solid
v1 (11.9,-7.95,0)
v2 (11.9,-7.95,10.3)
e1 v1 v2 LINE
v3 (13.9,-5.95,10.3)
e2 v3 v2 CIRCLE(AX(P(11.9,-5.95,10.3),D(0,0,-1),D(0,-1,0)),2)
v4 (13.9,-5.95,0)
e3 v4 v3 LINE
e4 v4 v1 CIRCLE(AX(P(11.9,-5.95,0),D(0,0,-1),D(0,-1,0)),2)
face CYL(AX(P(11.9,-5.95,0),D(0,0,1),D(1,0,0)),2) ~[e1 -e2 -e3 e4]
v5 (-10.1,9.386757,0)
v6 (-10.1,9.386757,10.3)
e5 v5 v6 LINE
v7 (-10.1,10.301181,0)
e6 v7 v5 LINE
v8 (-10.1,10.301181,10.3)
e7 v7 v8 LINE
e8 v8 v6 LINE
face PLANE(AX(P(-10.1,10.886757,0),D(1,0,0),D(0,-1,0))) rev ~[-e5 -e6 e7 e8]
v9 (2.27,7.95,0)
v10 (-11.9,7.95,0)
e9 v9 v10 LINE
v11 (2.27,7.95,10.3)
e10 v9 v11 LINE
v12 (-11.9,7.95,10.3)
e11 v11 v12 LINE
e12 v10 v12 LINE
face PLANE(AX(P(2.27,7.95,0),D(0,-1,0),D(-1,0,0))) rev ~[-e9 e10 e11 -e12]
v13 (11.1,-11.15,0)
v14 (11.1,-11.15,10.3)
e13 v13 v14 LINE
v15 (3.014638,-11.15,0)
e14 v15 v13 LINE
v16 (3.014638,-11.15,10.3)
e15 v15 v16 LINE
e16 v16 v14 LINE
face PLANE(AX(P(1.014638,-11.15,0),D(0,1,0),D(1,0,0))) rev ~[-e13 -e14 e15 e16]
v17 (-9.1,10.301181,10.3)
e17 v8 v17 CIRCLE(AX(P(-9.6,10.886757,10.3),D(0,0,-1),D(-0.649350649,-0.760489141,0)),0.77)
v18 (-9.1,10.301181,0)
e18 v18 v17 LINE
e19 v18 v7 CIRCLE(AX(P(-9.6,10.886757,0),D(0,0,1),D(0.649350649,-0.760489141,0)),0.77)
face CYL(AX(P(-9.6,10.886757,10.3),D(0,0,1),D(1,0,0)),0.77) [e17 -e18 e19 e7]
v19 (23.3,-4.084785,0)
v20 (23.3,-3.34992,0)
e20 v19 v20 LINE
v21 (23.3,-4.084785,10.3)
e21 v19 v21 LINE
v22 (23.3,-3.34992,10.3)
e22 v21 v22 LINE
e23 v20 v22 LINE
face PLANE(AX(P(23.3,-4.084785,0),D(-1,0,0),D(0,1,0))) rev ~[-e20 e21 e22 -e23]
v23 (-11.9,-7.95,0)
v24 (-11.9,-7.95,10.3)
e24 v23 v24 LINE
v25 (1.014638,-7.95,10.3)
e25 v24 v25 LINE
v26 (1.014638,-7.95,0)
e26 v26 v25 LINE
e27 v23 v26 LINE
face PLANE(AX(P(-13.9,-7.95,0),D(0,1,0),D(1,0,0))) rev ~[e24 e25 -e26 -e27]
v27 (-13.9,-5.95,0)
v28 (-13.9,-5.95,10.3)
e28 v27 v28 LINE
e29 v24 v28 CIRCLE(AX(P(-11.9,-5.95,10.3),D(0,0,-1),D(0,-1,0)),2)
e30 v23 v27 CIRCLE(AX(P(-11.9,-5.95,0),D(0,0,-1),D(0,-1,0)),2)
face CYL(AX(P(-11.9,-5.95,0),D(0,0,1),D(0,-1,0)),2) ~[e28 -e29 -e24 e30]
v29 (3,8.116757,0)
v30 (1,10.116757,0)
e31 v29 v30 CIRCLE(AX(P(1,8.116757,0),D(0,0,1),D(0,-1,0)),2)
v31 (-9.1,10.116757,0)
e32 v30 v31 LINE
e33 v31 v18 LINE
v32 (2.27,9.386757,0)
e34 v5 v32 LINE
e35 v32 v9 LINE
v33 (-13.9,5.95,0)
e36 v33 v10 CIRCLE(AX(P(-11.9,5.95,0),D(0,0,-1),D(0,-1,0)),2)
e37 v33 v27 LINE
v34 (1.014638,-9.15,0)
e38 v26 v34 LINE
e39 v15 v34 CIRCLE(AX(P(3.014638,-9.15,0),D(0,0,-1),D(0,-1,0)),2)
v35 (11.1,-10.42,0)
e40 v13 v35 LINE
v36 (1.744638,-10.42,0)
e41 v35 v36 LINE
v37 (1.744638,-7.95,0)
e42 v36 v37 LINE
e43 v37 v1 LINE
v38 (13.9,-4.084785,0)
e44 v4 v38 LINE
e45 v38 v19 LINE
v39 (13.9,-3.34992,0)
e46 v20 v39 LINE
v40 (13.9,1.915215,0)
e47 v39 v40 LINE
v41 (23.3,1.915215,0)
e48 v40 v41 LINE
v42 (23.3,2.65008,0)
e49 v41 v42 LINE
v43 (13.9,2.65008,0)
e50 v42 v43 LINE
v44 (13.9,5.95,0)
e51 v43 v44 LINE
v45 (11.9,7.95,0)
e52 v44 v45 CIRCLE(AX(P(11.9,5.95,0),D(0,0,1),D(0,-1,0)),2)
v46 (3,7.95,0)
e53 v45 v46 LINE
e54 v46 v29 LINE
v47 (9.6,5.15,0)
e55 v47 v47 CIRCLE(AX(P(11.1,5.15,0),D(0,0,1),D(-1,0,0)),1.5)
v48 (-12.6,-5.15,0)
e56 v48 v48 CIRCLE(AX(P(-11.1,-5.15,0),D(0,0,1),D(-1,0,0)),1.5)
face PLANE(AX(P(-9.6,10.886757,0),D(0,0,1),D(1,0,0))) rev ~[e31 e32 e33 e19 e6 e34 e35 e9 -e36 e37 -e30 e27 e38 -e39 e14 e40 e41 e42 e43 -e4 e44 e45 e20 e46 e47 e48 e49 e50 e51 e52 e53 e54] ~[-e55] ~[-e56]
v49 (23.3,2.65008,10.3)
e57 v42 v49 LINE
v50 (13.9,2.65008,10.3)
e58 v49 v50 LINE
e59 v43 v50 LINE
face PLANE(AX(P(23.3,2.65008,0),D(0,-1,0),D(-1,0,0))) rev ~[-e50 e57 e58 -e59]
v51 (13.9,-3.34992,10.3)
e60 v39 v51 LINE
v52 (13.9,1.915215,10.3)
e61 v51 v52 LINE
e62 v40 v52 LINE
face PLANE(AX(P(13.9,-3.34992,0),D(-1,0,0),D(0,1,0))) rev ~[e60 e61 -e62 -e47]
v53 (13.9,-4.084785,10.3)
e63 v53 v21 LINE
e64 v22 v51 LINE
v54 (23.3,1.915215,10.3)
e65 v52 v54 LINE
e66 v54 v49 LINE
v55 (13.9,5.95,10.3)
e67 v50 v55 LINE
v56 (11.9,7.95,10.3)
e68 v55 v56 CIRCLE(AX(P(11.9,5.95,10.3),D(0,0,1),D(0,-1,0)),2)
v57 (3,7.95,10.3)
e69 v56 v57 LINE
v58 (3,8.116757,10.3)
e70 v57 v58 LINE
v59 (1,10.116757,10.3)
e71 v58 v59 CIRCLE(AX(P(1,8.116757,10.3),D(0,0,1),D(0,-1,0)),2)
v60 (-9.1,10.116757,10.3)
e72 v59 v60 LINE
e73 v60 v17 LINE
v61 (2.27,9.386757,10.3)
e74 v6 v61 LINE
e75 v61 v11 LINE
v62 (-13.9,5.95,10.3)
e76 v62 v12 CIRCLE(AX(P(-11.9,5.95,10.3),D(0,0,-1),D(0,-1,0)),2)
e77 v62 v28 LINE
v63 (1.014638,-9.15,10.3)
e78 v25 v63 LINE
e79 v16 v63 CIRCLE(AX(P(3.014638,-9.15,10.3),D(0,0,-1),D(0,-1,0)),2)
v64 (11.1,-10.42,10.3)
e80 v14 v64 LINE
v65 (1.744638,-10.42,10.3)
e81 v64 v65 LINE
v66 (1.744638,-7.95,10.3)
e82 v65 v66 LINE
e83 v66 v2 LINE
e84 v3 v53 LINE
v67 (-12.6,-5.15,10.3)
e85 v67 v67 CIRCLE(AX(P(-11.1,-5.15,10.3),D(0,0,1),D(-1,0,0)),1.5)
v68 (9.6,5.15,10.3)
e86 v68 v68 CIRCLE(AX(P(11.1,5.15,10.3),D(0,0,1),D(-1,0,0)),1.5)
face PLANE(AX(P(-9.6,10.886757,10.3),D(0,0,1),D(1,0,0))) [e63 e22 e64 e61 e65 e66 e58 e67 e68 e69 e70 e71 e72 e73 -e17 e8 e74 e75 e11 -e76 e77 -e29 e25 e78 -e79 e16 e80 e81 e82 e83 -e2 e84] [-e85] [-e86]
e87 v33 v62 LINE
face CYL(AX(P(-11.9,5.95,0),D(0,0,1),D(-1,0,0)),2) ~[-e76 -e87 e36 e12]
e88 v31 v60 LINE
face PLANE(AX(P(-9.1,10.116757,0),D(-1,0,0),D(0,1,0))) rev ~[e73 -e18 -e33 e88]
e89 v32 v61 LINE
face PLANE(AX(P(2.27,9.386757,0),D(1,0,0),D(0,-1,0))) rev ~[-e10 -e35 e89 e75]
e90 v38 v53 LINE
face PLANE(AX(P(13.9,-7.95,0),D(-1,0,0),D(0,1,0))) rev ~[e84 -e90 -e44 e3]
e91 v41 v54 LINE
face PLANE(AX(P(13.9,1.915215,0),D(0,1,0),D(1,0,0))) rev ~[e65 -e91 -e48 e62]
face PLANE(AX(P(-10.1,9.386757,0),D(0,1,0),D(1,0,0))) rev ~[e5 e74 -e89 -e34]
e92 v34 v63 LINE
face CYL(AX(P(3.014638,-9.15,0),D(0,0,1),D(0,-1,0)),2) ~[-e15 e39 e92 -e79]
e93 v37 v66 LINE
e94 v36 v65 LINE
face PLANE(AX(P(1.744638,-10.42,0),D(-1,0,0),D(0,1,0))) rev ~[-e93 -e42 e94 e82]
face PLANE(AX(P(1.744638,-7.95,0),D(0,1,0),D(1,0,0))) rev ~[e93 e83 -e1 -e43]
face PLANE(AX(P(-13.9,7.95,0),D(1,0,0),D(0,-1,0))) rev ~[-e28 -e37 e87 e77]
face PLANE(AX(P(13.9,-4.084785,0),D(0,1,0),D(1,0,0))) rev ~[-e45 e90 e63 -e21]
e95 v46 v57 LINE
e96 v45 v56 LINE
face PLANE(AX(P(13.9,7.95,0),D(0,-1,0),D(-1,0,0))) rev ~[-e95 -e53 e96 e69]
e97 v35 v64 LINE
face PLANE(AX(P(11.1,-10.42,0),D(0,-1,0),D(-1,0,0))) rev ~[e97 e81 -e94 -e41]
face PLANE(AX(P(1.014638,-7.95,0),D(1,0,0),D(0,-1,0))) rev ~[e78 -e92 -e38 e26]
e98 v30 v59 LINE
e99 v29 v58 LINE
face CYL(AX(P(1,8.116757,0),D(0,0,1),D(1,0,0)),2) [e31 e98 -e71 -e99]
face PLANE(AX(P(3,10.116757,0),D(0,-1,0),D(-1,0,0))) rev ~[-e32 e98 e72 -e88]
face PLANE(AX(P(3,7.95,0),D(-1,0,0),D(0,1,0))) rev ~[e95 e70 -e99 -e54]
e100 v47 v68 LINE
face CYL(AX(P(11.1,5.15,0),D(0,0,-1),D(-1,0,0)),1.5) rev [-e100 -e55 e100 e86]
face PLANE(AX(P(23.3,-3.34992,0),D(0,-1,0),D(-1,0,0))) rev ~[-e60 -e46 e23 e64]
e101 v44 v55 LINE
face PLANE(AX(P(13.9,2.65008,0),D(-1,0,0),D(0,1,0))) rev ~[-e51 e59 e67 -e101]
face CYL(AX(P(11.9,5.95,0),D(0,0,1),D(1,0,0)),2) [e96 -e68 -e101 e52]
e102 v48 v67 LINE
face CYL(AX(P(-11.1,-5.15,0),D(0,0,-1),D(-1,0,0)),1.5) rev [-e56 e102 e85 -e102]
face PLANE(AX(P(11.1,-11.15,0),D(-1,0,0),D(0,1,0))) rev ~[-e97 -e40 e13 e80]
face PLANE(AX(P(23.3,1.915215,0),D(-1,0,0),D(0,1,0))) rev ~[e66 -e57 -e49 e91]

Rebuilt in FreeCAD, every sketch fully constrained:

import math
import FreeCAD as App
import Part
import Sketcher
Q = App.Units.Quantity


def edges_at(feature, points):
    """Names of the edges that pass closest to the given points."""
    edges = feature.Shape.Edges
    near = lambda p: min(range(len(edges)), key=lambda i: edges[i].distToShape(Part.Vertex(*p))[0])
    return sorted({f"Edge{near(p) + 1}" for p in points})

doc = App.newDocument("Part")
params = doc.addObject("Spreadsheet::Sheet", "Params")
for row, (alias, value) in enumerate([
    ("sketch1_diameter", "3 mm"),
    ("sketch1_radius", "0.5 mm"),
    ("sketch1_width", "9.4 mm"),
    ("sketch1_width2", "10.9 mm"),
    ("sketch1_width3", "12.1 mm"),
    ("pad1_length", "10.3 mm"),
    ("fillet_radius", "2 mm"),
    ("sketch2_diameter", "1.54 mm"),
    ("pad2_length", "10.3 mm"),
], start=1):
    params.set(f"A{row}", alias)
    params.set(f"B{row}", "=" + value)
    params.setAlias(f"B{row}", alias)

body = doc.addObject("PartDesign::Body", "Body")

sketch1 = body.newObject("Sketcher::SketchObject", "Sketch")
sketch1.AttachmentSupport = (doc.getObject("XY_Plane"), [""])
sketch1.MapMode = "FlatFace"
sketch1.addGeometry([
    Part.LineSegment(App.Vector(13.9, -4.1, 0), App.Vector(23.3, -4.1, 0)),
    Part.LineSegment(App.Vector(23.3, -4.1, 0), App.Vector(23.3, -3.3, 0)),
    Part.LineSegment(App.Vector(23.3, -3.3, 0), App.Vector(13.9, -3.3, 0)),
    Part.LineSegment(App.Vector(13.9, -3.3, 0), App.Vector(13.9, 1.9, 0)),
    Part.LineSegment(App.Vector(13.9, 1.9, 0), App.Vector(23.3, 1.9, 0)),
    Part.LineSegment(App.Vector(23.3, 1.9, 0), App.Vector(23.3, 2.7, 0)),
    Part.LineSegment(App.Vector(23.3, 2.7, 0), App.Vector(13.9, 2.7, 0)),
    Part.LineSegment(App.Vector(13.9, 2.7, 0), App.Vector(13.9, 8, 0)),
    Part.LineSegment(App.Vector(13.9, 8, 0), App.Vector(3, 8, 0)),
    Part.LineSegment(App.Vector(3, 8, 0), App.Vector(3, 10.1, 0)),
    Part.LineSegment(App.Vector(3, 10.1, 0), App.Vector(-9.1, 10.1, 0)),
    Part.LineSegment(App.Vector(-9.1, 10.1, 0), App.Vector(-9.1, 10.9, 0)),
    Part.ArcOfCircle(Part.Circle(App.Vector(-9.6, 10.9, 0), App.Vector(0, 0, 1), 0.5), math.radians(0), math.radians(180)),
    Part.LineSegment(App.Vector(-10.1, 10.9, 0), App.Vector(-10.1, 9.4, 0)),
    Part.LineSegment(App.Vector(-10.1, 9.4, 0), App.Vector(2.3, 9.4, 0)),
    Part.LineSegment(App.Vector(2.3, 9.4, 0), App.Vector(2.3, 8, 0)),
    Part.LineSegment(App.Vector(2.3, 8, 0), App.Vector(-13.9, 8, 0)),
    Part.LineSegment(App.Vector(-13.9, 8, 0), App.Vector(-13.9, -8, 0)),
    Part.LineSegment(App.Vector(-13.9, -8, 0), App.Vector(1, -8, 0)),
    Part.LineSegment(App.Vector(1, -8, 0), App.Vector(1, -11.2, 0)),
    Part.LineSegment(App.Vector(1, -11.2, 0), App.Vector(11.1, -11.2, 0)),
    Part.LineSegment(App.Vector(11.1, -11.2, 0), App.Vector(11.1, -10.4, 0)),
    Part.LineSegment(App.Vector(11.1, -10.4, 0), App.Vector(1.7, -10.4, 0)),
    Part.LineSegment(App.Vector(1.7, -10.4, 0), App.Vector(1.7, -8, 0)),
    Part.LineSegment(App.Vector(1.7, -8, 0), App.Vector(13.9, -8, 0)),
    Part.LineSegment(App.Vector(13.9, -8, 0), App.Vector(13.9, -4.1, 0)),
    Part.Circle(App.Vector(-11.1, -5.2, 0), App.Vector(0, 0, 1), 1.5),
    Part.Circle(App.Vector(11.1, 5.2, 0), App.Vector(0, 0, 1), 1.5),
], False)
sketch1.addConstraint([
    Sketcher.Constraint("Coincident", 0, 2, 1, 1),
    Sketcher.Constraint("Coincident", 1, 2, 2, 1),
    Sketcher.Constraint("Coincident", 2, 2, 3, 1),
    Sketcher.Constraint("Coincident", 3, 2, 4, 1),
    Sketcher.Constraint("Coincident", 4, 2, 5, 1),
    Sketcher.Constraint("Coincident", 5, 2, 6, 1),
    Sketcher.Constraint("Coincident", 6, 2, 7, 1),
    Sketcher.Constraint("Coincident", 7, 2, 8, 1),
    Sketcher.Constraint("Coincident", 8, 2, 9, 1),
    Sketcher.Constraint("Coincident", 9, 2, 10, 1),
    Sketcher.Constraint("Coincident", 10, 2, 11, 1),
    Sketcher.Constraint("Tangent", 11, 2, 12, 1),
    Sketcher.Constraint("Tangent", 12, 2, 13, 1),
    Sketcher.Constraint("Coincident", 13, 2, 14, 1),
    Sketcher.Constraint("Coincident", 14, 2, 15, 1),
    Sketcher.Constraint("Coincident", 15, 2, 16, 1),
    Sketcher.Constraint("Coincident", 16, 2, 17, 1),
    Sketcher.Constraint("Coincident", 17, 2, 18, 1),
    Sketcher.Constraint("Coincident", 18, 2, 19, 1),
    Sketcher.Constraint("Coincident", 19, 2, 20, 1),
    Sketcher.Constraint("Coincident", 20, 2, 21, 1),
    Sketcher.Constraint("Coincident", 21, 2, 22, 1),
    Sketcher.Constraint("Coincident", 22, 2, 23, 1),
    Sketcher.Constraint("Coincident", 23, 2, 24, 1),
    Sketcher.Constraint("Coincident", 24, 2, 25, 1),
    Sketcher.Constraint("Coincident", 25, 2, 0, 1),
    Sketcher.Constraint("Horizontal", 0),
    Sketcher.Constraint("Vertical", 1),
    Sketcher.Constraint("Horizontal", 2),
    Sketcher.Constraint("Vertical", 3),
    Sketcher.Constraint("Horizontal", 4),
    Sketcher.Constraint("Vertical", 5),
    Sketcher.Constraint("Horizontal", 6),
    Sketcher.Constraint("Vertical", 7),
    Sketcher.Constraint("Horizontal", 8),
    Sketcher.Constraint("Vertical", 9),
    Sketcher.Constraint("Horizontal", 10),
    Sketcher.Constraint("Vertical", 11),
    Sketcher.Constraint("Vertical", 13),
    Sketcher.Constraint("Horizontal", 14),
    Sketcher.Constraint("Vertical", 15),
    Sketcher.Constraint("Horizontal", 16),
    Sketcher.Constraint("Vertical", 17),
    Sketcher.Constraint("Horizontal", 18),
    Sketcher.Constraint("Vertical", 19),
    Sketcher.Constraint("Horizontal", 20),
    Sketcher.Constraint("Vertical", 21),
    Sketcher.Constraint("Horizontal", 22),
    Sketcher.Constraint("Vertical", 23),
    Sketcher.Constraint("Horizontal", 24),
    Sketcher.Constraint("Vertical", 25),
    Sketcher.Constraint("Equal", 26, 27),
    Sketcher.Constraint("Symmetric", 26, 3, 27, 3, -1, 1),
    Sketcher.Constraint("Symmetric", 7, 2, 17, 2, -1, 1),
    Sketcher.Constraint("Symmetric", 16, 2, 24, 2, -1, 1),
    Sketcher.Constraint("Horizontal", 8, 2, 15, 2),
    Sketcher.Constraint("Vertical", 1, 2, 4, 2),
    Sketcher.Constraint("Vertical", 3, 2, 6, 2),
    Sketcher.Constraint("Vertical", 27, 3, 20, 2),
    Sketcher.Constraint("Equal", 1, 5),
    Sketcher.Constraint("Diameter", 26, Q("3 mm")),
    Sketcher.Constraint("Radius", 12, Q("0.5 mm")),
    Sketcher.Constraint("DistanceX", 0, 1, 0, 2, Q("9.4 mm")),
    Sketcher.Constraint("DistanceX", 8, 2, 8, 1, Q("10.9 mm")),
    Sketcher.Constraint("DistanceX", 10, 2, 10, 1, Q("12.1 mm")),
    Sketcher.Constraint("DistanceY", 13, 2, 13, 1, Q("1.5 mm")),
    Sketcher.Constraint("DistanceY", 17, 2, 17, 1, Q("15.9 mm")),
    Sketcher.Constraint("DistanceY", 19, 2, 19, 1, Q("3.2 mm")),
    Sketcher.Constraint("DistanceX", -1, 1, 8, 2, Q("3 mm")),
    Sketcher.Constraint("DistanceX", 26, 3, 2, 2, Q("25 mm")),
    Sketcher.Constraint("DistanceY", 0, 2, 3, 2, Q("6 mm")),
    Sketcher.Constraint("DistanceY", 19, 2, 26, 3, Q("6 mm")),
    Sketcher.Constraint("DistanceX", 14, 1, 14, 2, Q("12.37 mm")),
    Sketcher.Constraint("DistanceY", 11, 1, 11, 2, Q("0.77 mm")),
    Sketcher.Constraint("DistanceY", 21, 1, 21, 2, Q("0.73 mm")),
    Sketcher.Constraint("DistanceX", 19, 2, 22, 2, Q("0.73 mm")),
    Sketcher.Constraint("DistanceY", 7, 1, 7, 2, Q("5.29992 mm")),
    Sketcher.Constraint("DistanceX", 18, 1, 18, 2, Q("14.914638 mm")),
    Sketcher.Constraint("DistanceY", 1, 1, 1, 2, Q("0.734865 mm")),
    Sketcher.Constraint("DistanceY", 9, 1, 9, 2, Q("2.166757 mm")),
])
sketch1.setExpression("Constraints[60]", "Params.sketch1_diameter")
sketch1.setExpression("Constraints[61]", "Params.sketch1_radius")
sketch1.setExpression("Constraints[62]", "Params.sketch1_width")
sketch1.setExpression("Constraints[63]", "Params.sketch1_width2")
sketch1.setExpression("Constraints[64]", "Params.sketch1_width3")
pad1 = body.newObject("PartDesign::Pad", "Pad")
pad1.Profile = sketch1
pad1.setExpression("Length", "Params.pad1_length")
doc.recompute()

fillet = body.newObject("PartDesign::Fillet", "Fillet")
fillet.Base = (pad1, edges_at(pad1, [
    (1.015, -11.15, 5.15),
    (-13.9, -7.95, 5.15),
    (-13.9, 7.95, 5.15),
    (3, 10.117, 5.15),
    (13.9, 7.95, 5.15),
    (13.9, -7.95, 5.15),
]))
fillet.setExpression("Radius", "Params.fillet_radius")

sketch2 = body.newObject("Sketcher::SketchObject", "Sketch001")
sketch2.AttachmentSupport = (doc.getObject("XY_Plane"), [""])
sketch2.MapMode = "FlatFace"
sketch2.AttachmentOffset = App.Placement(App.Vector(0, 0, 10.3), App.Rotation())
sketch2.addGeometry(Part.Circle(App.Vector(-9.6, 10.9, 0), App.Vector(0, 0, 1), 0.8), False)
sketch2.addConstraint([
    Sketcher.Constraint("Diameter", 0, Q("1.54 mm")),
    Sketcher.Constraint("DistanceX", 0, 3, -1, 1, Q("9.6 mm")),
    Sketcher.Constraint("DistanceY", -1, 1, 0, 3, Q("10.886757 mm")),
])
sketch2.setExpression("Constraints[0]", "Params.sketch2_diameter")
pad2 = body.newObject("PartDesign::Pad", "Pad001")
pad2.Profile = sketch2
pad2.setExpression("Length", "Params.pad2_length")
pad2.Reversed = True

doc.recompute()
